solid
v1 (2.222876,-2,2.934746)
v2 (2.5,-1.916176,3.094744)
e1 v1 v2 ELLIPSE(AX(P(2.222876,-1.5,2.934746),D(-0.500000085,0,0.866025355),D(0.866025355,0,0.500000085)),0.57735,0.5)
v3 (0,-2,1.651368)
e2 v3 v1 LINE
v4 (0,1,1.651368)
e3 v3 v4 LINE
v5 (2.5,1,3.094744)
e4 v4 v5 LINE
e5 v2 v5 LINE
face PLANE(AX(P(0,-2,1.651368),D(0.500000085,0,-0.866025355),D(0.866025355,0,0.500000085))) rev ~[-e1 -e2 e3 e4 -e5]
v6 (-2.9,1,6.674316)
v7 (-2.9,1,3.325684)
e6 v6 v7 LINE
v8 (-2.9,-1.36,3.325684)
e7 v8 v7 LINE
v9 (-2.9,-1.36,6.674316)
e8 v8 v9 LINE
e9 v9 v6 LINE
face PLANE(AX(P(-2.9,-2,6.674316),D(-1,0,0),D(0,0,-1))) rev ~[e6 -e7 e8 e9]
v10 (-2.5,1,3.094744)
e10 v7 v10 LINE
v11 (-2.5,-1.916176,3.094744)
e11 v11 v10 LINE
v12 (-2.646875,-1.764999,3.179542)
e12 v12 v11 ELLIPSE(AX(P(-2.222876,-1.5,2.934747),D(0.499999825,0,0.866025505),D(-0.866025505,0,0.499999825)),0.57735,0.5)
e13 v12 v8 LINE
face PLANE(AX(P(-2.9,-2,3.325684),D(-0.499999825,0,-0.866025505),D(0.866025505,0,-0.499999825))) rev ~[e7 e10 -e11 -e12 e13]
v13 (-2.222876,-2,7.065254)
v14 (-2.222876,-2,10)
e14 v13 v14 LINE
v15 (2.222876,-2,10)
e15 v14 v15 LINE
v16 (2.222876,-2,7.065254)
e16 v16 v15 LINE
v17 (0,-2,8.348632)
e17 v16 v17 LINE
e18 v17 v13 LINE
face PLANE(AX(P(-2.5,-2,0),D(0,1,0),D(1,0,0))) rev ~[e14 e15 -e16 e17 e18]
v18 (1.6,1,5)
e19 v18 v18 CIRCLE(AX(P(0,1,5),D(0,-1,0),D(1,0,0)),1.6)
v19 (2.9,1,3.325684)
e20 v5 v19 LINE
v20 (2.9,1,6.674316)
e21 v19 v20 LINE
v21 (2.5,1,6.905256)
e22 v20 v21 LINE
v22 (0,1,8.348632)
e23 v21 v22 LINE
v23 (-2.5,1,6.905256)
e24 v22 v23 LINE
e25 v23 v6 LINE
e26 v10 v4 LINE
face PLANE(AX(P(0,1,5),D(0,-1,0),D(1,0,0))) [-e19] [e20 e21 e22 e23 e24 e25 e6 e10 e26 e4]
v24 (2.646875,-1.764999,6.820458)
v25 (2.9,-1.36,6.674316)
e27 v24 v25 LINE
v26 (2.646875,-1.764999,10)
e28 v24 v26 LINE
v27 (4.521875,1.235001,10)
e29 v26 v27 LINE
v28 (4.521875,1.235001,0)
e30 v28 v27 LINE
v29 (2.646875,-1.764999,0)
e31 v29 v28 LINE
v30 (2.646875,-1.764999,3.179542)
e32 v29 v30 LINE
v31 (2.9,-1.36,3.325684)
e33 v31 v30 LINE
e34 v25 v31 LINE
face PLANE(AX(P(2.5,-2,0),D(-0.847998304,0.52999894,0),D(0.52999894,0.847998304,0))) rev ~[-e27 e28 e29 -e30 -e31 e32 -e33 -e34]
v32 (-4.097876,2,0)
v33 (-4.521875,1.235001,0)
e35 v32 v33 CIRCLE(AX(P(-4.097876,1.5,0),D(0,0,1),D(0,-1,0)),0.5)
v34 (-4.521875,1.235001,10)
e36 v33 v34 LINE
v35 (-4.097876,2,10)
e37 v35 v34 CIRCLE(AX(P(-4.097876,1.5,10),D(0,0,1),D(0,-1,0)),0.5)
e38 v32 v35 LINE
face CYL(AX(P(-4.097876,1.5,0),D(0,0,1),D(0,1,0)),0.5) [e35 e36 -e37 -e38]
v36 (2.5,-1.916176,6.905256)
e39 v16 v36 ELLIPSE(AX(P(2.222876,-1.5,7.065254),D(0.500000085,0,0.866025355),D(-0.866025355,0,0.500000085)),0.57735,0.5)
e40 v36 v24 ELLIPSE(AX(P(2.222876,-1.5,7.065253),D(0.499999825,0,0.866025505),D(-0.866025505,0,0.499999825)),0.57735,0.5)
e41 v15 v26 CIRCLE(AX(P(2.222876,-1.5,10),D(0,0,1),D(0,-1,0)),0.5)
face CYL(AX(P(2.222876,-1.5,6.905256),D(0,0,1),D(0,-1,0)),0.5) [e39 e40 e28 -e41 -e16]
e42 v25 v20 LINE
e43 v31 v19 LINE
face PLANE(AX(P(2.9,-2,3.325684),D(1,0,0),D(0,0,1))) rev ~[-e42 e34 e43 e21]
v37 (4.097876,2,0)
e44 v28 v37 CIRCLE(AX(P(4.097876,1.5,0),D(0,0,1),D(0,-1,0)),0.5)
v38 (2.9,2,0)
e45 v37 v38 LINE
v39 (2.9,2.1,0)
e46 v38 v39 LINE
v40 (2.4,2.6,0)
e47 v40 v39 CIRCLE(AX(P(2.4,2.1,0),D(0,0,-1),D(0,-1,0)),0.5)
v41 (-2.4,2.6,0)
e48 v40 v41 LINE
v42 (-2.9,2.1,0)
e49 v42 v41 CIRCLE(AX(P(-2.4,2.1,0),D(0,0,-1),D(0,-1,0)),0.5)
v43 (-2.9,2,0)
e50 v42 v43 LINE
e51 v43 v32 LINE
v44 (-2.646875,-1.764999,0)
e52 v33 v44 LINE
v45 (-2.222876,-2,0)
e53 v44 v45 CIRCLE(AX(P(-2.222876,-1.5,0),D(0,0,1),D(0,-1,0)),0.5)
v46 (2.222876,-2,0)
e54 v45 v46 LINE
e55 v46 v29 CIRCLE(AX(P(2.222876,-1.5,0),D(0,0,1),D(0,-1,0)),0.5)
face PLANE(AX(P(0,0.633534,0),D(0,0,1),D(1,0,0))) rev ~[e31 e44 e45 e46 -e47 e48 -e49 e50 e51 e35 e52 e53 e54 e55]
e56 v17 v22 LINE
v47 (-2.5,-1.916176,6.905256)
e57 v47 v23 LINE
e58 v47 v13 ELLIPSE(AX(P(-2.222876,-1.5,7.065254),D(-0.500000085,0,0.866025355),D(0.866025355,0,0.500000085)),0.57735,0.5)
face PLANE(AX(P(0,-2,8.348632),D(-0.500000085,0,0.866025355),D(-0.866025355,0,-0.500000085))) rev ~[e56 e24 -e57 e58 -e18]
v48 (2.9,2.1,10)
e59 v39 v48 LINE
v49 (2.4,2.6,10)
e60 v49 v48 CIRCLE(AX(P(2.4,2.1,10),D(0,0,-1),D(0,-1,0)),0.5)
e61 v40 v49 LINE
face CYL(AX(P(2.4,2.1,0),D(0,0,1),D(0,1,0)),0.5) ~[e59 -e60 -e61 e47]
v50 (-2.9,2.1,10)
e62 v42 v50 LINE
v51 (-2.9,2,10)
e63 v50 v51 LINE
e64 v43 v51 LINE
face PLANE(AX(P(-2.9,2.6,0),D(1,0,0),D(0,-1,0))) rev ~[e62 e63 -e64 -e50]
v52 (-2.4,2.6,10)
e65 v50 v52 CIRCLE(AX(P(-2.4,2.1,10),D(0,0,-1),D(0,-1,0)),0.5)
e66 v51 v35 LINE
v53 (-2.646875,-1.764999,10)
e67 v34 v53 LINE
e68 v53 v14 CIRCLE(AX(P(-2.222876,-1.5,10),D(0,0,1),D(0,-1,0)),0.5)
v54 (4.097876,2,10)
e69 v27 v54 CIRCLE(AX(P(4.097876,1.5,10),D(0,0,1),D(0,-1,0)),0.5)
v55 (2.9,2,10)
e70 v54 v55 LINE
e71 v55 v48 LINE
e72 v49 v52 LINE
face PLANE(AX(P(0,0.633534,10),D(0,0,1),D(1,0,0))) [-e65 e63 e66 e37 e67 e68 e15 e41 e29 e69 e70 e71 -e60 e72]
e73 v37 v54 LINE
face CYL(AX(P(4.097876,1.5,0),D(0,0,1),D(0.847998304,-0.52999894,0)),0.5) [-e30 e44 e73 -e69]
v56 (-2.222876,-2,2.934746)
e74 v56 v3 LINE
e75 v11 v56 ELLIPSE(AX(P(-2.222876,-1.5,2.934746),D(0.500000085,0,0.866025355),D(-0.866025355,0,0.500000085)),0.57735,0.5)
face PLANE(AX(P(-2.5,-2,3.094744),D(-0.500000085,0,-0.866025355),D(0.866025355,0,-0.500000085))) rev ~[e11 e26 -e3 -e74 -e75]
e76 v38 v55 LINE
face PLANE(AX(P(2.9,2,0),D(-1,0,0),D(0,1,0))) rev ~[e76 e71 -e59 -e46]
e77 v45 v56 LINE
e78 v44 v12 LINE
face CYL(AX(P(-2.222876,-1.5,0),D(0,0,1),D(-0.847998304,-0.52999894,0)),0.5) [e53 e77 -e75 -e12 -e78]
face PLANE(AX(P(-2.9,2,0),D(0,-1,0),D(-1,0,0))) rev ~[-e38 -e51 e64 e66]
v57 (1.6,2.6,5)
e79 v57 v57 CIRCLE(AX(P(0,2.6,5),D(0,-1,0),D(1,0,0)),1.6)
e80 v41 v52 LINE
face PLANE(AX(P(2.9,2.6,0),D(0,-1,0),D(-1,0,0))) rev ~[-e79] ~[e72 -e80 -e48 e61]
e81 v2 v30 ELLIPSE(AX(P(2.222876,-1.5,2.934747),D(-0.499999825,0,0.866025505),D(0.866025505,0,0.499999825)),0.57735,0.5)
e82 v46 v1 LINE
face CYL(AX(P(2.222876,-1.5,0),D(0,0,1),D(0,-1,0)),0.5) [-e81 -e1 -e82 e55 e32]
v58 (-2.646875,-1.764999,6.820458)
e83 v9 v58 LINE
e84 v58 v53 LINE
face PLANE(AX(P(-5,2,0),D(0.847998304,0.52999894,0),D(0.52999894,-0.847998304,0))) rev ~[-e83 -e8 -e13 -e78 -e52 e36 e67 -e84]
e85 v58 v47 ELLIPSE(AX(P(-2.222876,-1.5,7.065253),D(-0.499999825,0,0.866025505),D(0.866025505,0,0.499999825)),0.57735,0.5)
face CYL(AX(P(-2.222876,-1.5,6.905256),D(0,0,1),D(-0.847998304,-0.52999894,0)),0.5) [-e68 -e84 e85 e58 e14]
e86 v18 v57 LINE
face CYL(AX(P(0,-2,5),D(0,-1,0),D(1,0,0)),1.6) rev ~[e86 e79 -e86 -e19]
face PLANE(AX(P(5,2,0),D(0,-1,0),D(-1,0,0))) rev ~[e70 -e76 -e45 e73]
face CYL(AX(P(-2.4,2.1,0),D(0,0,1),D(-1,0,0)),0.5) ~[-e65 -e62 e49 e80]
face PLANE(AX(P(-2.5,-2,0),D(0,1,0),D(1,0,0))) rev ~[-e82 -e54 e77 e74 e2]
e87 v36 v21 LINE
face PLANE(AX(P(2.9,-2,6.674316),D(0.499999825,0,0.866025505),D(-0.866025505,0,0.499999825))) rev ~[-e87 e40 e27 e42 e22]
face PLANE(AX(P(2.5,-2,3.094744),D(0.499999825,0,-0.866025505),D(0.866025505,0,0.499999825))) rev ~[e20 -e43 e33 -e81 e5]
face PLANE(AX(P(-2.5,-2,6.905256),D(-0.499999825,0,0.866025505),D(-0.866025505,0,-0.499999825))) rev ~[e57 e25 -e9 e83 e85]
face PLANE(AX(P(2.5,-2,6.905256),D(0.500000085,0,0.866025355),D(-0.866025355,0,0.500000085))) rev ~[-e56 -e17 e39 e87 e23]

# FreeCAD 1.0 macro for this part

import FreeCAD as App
import Part
import Sketcher
from FreeCAD import Vector
Q = App.Units.Quantity


def edges_at(feature, points):
    """Names of the edges that pass closest to the given points."""
    edges = feature.Shape.Edges
    near = lambda p: min(range(len(edges)), key=lambda i: edges[i].distToShape(Part.Vertex(*p))[0])
    return sorted({f"Edge{near(p) + 1}" for p in points})


def add_polygon(sketch, points):
    """Adds a closed chain of lines whose ends are joined by coincident constraints."""
    first, n = sketch.GeometryCount, len(points)
    for a, b in zip(points, points[1:] + points[:1]):
        sketch.addGeometry(Part.LineSegment(App.Vector(*a, 0), App.Vector(*b, 0)), False)
    for i in range(n):
        sketch.addConstraint(Sketcher.Constraint("Coincident", first + i, 2, first + (i + 1) % n, 1))

doc = App.newDocument("Part")
params = doc.addObject("Spreadsheet::Sheet", "Params")
for row, (alias, value) in enumerate([
    ("sketch1_width", "5 mm"),
    ("sketch1_width2", "2.1 mm"),
    ("sketch1_width3", "5.8 mm"),
    ("sketch1_height", "0.6 mm"),
    ("pad1_length", "10 mm"),
    ("sketch2_diameter", "3.2 mm"),
    ("sketch3_diameter", "3.2 mm"),
    ("pocket2_length", "3 mm"),
    ("fillet_radius", "0.5 mm"),
], start=1):
    params.set(f"A{row}", alias)
    params.set(f"B{row}", "=" + value)
    params.setAlias(f"B{row}", alias)

body = doc.addObject("PartDesign::Body", "Body")

sketch1 = body.newObject("Sketcher::SketchObject", "Sketch")
sketch1.AttachmentSupport = (doc.getObject("XY_Plane"), [""])
sketch1.MapMode = "FlatFace"
add_polygon(sketch1, [(-2.9, 2), (-5, 2), (-2.5, -2), (2.5, -2), (5, 2), (2.9, 2), (2.9, 2.6), (-2.9, 2.6)])
sketch1.addConstraint(Sketcher.Constraint("Horizontal", 0))
sketch1.addConstraint(Sketcher.Constraint("Horizontal", 2))
sketch1.addConstraint(Sketcher.Constraint("Horizontal", 4))
sketch1.addConstraint(Sketcher.Constraint("Vertical", 5))
sketch1.addConstraint(Sketcher.Constraint("Horizontal", 6))
sketch1.addConstraint(Sketcher.Constraint("Vertical", 7))
sketch1.addConstraint(Sketcher.Constraint("Symmetric", 0, 2, 3, 2, -2))
sketch1.addConstraint(Sketcher.Constraint("Equal", 0, 4))
sketch1.addConstraint(Sketcher.Constraint("Equal", 1, 3))
sketch1.addConstraint(Sketcher.Constraint("DistanceX", 2, 1, 2, 2, 5.0))
sketch1.addConstraint(Sketcher.Constraint("DistanceX", 0, 2, 0, 1, 2.1))
sketch1.addConstraint(Sketcher.Constraint("DistanceX", 6, 2, 6, 1, 5.8))
sketch1.addConstraint(Sketcher.Constraint("DistanceY", 5, 1, 5, 2, 0.6))
sketch1.addConstraint(Sketcher.Constraint("DistanceY", -1, 1, 0, 2, 2.0))
sketch1.addConstraint(Sketcher.Constraint("DistanceY", 1, 2, -1, 1, 2.0))
sketch1.setExpression("Constraints[17]", "Params.sketch1_width")
sketch1.setExpression("Constraints[18]", "Params.sketch1_width2")
sketch1.setExpression("Constraints[19]", "Params.sketch1_width3")
sketch1.setExpression("Constraints[20]", "Params.sketch1_height")
pad1 = body.newObject("PartDesign::Pad", "Pad")
pad1.Profile = sketch1
pad1.setExpression("Length", "Params.pad1_length")

sketch2 = body.newObject("Sketcher::SketchObject", "Sketch001")
sketch2.AttachmentSupport = (doc.getObject("XZ_Plane"), [""])
sketch2.MapMode = "FlatFace"
sketch2.AttachmentOffset = App.Placement(Vector(0, 0, 2), App.Rotation())
sketch2.addGeometry(Part.Circle(Vector(0, 5, 0), Vector(0, 0, 1), 1.6), False)
sketch2.addConstraint(Sketcher.Constraint("PointOnObject", 0, 3, -2))
sketch2.addConstraint(Sketcher.Constraint("Diameter", 0, 3.2))
sketch2.addConstraint(Sketcher.Constraint("DistanceY", -1, 1, 0, 3, 5.0))
sketch2.setExpression("Constraints[1]", "Params.sketch2_diameter")
pocket1 = body.newObject("PartDesign::Pocket", "Pocket")
pocket1.Profile = sketch2
pocket1.Type = "ThroughAll"

sketch3 = body.newObject("Sketcher::SketchObject", "Sketch002")
sketch3.AttachmentSupport = (doc.getObject("XZ_Plane"), [""])
sketch3.MapMode = "FlatFace"
sketch3.AttachmentOffset = App.Placement(Vector(0, 0, 2), App.Rotation())
add_polygon(sketch3, [(0, 1.65), (2.5, 3.09), (2.9, 3.33), (2.9, 6.67), (2.5, 6.91), (0, 8.35), (-2.5, 6.91), (-2.9, 6.67), (-2.9, 3.33), (-2.5, 3.09)])
sketch3.addGeometry(Part.Circle(Vector(0, 5, 0), Vector(0, 0, 1), 1.6), False)
sketch3.addConstraint(Sketcher.Constraint("Vertical", 2))
sketch3.addConstraint(Sketcher.Constraint("Vertical", 7))
sketch3.addConstraint(Sketcher.Constraint("Symmetric", 3, 2, 5, 2, -2))
sketch3.addConstraint(Sketcher.Constraint("Symmetric", 2, 2, 6, 2, -2))
sketch3.addConstraint(Sketcher.Constraint("Symmetric", 0, 2, 8, 2, -2))
sketch3.addConstraint(Sketcher.Constraint("PointOnObject", 10, 3, -2))
sketch3.addConstraint(Sketcher.Constraint("PointOnObject", 4, 2, -2))
sketch3.addConstraint(Sketcher.Constraint("PointOnObject", 9, 2, -2))
sketch3.addConstraint(Sketcher.Constraint("Parallel", 0, 1))
sketch3.addConstraint(Sketcher.Constraint("Parallel", 3, 4))
sketch3.addConstraint(Sketcher.Constraint("Parallel", 1, 5))
sketch3.addConstraint(Sketcher.Constraint("Parallel", 4, 8))
sketch3.addConstraint(Sketcher.Constraint("Vertical", 0, 2, 3, 2))
sketch3.addConstraint(Sketcher.Constraint("Diameter", 10, 3.2))
sketch3.addConstraint(Sketcher.Constraint("Angle", 0, Q("30.000006 deg")))
sketch3.addConstraint(Sketcher.Constraint("DistanceY", -1, 1, 10, 3, 5.0))
sketch3.addConstraint(Sketcher.Constraint("DistanceX", 5, 2, 3, 2, 5.0))
sketch3.addConstraint(Sketcher.Constraint("DistanceX", -1, 1, 1, 2, 2.9))
sketch3.addConstraint(Sketcher.Constraint("DistanceY", 2, 1, 2, 2, 3.348632))
sketch3.addConstraint(Sketcher.Constraint("DistanceY", -1, 1, 0, 2, 3.094744))
sketch3.setExpression("Constraints[23]", "Params.sketch3_diameter")
pocket2 = body.newObject("PartDesign::Pocket", "Pocket001")
pocket2.Profile = sketch3
pocket2.setExpression("Length", "Params.pocket2_length")
doc.recompute()

fillet = body.newObject("PartDesign::Fillet", "Fillet")
fillet.Base = (pocket2, edges_at(pocket2, [
    (-5, 2, 5),
    (-2.5, -2, 1.547),
    (-2.5, -2, 8.453),
    (2.5, -2, 1.547),
    (2.5, -2, 8.453),
    (5, 2, 5),
    (-2.9, 2.6, 5),
    (2.9, 2.6, 5),
]))
fillet.setExpression("Radius", "Params.fillet_radius")

doc.recompute()
